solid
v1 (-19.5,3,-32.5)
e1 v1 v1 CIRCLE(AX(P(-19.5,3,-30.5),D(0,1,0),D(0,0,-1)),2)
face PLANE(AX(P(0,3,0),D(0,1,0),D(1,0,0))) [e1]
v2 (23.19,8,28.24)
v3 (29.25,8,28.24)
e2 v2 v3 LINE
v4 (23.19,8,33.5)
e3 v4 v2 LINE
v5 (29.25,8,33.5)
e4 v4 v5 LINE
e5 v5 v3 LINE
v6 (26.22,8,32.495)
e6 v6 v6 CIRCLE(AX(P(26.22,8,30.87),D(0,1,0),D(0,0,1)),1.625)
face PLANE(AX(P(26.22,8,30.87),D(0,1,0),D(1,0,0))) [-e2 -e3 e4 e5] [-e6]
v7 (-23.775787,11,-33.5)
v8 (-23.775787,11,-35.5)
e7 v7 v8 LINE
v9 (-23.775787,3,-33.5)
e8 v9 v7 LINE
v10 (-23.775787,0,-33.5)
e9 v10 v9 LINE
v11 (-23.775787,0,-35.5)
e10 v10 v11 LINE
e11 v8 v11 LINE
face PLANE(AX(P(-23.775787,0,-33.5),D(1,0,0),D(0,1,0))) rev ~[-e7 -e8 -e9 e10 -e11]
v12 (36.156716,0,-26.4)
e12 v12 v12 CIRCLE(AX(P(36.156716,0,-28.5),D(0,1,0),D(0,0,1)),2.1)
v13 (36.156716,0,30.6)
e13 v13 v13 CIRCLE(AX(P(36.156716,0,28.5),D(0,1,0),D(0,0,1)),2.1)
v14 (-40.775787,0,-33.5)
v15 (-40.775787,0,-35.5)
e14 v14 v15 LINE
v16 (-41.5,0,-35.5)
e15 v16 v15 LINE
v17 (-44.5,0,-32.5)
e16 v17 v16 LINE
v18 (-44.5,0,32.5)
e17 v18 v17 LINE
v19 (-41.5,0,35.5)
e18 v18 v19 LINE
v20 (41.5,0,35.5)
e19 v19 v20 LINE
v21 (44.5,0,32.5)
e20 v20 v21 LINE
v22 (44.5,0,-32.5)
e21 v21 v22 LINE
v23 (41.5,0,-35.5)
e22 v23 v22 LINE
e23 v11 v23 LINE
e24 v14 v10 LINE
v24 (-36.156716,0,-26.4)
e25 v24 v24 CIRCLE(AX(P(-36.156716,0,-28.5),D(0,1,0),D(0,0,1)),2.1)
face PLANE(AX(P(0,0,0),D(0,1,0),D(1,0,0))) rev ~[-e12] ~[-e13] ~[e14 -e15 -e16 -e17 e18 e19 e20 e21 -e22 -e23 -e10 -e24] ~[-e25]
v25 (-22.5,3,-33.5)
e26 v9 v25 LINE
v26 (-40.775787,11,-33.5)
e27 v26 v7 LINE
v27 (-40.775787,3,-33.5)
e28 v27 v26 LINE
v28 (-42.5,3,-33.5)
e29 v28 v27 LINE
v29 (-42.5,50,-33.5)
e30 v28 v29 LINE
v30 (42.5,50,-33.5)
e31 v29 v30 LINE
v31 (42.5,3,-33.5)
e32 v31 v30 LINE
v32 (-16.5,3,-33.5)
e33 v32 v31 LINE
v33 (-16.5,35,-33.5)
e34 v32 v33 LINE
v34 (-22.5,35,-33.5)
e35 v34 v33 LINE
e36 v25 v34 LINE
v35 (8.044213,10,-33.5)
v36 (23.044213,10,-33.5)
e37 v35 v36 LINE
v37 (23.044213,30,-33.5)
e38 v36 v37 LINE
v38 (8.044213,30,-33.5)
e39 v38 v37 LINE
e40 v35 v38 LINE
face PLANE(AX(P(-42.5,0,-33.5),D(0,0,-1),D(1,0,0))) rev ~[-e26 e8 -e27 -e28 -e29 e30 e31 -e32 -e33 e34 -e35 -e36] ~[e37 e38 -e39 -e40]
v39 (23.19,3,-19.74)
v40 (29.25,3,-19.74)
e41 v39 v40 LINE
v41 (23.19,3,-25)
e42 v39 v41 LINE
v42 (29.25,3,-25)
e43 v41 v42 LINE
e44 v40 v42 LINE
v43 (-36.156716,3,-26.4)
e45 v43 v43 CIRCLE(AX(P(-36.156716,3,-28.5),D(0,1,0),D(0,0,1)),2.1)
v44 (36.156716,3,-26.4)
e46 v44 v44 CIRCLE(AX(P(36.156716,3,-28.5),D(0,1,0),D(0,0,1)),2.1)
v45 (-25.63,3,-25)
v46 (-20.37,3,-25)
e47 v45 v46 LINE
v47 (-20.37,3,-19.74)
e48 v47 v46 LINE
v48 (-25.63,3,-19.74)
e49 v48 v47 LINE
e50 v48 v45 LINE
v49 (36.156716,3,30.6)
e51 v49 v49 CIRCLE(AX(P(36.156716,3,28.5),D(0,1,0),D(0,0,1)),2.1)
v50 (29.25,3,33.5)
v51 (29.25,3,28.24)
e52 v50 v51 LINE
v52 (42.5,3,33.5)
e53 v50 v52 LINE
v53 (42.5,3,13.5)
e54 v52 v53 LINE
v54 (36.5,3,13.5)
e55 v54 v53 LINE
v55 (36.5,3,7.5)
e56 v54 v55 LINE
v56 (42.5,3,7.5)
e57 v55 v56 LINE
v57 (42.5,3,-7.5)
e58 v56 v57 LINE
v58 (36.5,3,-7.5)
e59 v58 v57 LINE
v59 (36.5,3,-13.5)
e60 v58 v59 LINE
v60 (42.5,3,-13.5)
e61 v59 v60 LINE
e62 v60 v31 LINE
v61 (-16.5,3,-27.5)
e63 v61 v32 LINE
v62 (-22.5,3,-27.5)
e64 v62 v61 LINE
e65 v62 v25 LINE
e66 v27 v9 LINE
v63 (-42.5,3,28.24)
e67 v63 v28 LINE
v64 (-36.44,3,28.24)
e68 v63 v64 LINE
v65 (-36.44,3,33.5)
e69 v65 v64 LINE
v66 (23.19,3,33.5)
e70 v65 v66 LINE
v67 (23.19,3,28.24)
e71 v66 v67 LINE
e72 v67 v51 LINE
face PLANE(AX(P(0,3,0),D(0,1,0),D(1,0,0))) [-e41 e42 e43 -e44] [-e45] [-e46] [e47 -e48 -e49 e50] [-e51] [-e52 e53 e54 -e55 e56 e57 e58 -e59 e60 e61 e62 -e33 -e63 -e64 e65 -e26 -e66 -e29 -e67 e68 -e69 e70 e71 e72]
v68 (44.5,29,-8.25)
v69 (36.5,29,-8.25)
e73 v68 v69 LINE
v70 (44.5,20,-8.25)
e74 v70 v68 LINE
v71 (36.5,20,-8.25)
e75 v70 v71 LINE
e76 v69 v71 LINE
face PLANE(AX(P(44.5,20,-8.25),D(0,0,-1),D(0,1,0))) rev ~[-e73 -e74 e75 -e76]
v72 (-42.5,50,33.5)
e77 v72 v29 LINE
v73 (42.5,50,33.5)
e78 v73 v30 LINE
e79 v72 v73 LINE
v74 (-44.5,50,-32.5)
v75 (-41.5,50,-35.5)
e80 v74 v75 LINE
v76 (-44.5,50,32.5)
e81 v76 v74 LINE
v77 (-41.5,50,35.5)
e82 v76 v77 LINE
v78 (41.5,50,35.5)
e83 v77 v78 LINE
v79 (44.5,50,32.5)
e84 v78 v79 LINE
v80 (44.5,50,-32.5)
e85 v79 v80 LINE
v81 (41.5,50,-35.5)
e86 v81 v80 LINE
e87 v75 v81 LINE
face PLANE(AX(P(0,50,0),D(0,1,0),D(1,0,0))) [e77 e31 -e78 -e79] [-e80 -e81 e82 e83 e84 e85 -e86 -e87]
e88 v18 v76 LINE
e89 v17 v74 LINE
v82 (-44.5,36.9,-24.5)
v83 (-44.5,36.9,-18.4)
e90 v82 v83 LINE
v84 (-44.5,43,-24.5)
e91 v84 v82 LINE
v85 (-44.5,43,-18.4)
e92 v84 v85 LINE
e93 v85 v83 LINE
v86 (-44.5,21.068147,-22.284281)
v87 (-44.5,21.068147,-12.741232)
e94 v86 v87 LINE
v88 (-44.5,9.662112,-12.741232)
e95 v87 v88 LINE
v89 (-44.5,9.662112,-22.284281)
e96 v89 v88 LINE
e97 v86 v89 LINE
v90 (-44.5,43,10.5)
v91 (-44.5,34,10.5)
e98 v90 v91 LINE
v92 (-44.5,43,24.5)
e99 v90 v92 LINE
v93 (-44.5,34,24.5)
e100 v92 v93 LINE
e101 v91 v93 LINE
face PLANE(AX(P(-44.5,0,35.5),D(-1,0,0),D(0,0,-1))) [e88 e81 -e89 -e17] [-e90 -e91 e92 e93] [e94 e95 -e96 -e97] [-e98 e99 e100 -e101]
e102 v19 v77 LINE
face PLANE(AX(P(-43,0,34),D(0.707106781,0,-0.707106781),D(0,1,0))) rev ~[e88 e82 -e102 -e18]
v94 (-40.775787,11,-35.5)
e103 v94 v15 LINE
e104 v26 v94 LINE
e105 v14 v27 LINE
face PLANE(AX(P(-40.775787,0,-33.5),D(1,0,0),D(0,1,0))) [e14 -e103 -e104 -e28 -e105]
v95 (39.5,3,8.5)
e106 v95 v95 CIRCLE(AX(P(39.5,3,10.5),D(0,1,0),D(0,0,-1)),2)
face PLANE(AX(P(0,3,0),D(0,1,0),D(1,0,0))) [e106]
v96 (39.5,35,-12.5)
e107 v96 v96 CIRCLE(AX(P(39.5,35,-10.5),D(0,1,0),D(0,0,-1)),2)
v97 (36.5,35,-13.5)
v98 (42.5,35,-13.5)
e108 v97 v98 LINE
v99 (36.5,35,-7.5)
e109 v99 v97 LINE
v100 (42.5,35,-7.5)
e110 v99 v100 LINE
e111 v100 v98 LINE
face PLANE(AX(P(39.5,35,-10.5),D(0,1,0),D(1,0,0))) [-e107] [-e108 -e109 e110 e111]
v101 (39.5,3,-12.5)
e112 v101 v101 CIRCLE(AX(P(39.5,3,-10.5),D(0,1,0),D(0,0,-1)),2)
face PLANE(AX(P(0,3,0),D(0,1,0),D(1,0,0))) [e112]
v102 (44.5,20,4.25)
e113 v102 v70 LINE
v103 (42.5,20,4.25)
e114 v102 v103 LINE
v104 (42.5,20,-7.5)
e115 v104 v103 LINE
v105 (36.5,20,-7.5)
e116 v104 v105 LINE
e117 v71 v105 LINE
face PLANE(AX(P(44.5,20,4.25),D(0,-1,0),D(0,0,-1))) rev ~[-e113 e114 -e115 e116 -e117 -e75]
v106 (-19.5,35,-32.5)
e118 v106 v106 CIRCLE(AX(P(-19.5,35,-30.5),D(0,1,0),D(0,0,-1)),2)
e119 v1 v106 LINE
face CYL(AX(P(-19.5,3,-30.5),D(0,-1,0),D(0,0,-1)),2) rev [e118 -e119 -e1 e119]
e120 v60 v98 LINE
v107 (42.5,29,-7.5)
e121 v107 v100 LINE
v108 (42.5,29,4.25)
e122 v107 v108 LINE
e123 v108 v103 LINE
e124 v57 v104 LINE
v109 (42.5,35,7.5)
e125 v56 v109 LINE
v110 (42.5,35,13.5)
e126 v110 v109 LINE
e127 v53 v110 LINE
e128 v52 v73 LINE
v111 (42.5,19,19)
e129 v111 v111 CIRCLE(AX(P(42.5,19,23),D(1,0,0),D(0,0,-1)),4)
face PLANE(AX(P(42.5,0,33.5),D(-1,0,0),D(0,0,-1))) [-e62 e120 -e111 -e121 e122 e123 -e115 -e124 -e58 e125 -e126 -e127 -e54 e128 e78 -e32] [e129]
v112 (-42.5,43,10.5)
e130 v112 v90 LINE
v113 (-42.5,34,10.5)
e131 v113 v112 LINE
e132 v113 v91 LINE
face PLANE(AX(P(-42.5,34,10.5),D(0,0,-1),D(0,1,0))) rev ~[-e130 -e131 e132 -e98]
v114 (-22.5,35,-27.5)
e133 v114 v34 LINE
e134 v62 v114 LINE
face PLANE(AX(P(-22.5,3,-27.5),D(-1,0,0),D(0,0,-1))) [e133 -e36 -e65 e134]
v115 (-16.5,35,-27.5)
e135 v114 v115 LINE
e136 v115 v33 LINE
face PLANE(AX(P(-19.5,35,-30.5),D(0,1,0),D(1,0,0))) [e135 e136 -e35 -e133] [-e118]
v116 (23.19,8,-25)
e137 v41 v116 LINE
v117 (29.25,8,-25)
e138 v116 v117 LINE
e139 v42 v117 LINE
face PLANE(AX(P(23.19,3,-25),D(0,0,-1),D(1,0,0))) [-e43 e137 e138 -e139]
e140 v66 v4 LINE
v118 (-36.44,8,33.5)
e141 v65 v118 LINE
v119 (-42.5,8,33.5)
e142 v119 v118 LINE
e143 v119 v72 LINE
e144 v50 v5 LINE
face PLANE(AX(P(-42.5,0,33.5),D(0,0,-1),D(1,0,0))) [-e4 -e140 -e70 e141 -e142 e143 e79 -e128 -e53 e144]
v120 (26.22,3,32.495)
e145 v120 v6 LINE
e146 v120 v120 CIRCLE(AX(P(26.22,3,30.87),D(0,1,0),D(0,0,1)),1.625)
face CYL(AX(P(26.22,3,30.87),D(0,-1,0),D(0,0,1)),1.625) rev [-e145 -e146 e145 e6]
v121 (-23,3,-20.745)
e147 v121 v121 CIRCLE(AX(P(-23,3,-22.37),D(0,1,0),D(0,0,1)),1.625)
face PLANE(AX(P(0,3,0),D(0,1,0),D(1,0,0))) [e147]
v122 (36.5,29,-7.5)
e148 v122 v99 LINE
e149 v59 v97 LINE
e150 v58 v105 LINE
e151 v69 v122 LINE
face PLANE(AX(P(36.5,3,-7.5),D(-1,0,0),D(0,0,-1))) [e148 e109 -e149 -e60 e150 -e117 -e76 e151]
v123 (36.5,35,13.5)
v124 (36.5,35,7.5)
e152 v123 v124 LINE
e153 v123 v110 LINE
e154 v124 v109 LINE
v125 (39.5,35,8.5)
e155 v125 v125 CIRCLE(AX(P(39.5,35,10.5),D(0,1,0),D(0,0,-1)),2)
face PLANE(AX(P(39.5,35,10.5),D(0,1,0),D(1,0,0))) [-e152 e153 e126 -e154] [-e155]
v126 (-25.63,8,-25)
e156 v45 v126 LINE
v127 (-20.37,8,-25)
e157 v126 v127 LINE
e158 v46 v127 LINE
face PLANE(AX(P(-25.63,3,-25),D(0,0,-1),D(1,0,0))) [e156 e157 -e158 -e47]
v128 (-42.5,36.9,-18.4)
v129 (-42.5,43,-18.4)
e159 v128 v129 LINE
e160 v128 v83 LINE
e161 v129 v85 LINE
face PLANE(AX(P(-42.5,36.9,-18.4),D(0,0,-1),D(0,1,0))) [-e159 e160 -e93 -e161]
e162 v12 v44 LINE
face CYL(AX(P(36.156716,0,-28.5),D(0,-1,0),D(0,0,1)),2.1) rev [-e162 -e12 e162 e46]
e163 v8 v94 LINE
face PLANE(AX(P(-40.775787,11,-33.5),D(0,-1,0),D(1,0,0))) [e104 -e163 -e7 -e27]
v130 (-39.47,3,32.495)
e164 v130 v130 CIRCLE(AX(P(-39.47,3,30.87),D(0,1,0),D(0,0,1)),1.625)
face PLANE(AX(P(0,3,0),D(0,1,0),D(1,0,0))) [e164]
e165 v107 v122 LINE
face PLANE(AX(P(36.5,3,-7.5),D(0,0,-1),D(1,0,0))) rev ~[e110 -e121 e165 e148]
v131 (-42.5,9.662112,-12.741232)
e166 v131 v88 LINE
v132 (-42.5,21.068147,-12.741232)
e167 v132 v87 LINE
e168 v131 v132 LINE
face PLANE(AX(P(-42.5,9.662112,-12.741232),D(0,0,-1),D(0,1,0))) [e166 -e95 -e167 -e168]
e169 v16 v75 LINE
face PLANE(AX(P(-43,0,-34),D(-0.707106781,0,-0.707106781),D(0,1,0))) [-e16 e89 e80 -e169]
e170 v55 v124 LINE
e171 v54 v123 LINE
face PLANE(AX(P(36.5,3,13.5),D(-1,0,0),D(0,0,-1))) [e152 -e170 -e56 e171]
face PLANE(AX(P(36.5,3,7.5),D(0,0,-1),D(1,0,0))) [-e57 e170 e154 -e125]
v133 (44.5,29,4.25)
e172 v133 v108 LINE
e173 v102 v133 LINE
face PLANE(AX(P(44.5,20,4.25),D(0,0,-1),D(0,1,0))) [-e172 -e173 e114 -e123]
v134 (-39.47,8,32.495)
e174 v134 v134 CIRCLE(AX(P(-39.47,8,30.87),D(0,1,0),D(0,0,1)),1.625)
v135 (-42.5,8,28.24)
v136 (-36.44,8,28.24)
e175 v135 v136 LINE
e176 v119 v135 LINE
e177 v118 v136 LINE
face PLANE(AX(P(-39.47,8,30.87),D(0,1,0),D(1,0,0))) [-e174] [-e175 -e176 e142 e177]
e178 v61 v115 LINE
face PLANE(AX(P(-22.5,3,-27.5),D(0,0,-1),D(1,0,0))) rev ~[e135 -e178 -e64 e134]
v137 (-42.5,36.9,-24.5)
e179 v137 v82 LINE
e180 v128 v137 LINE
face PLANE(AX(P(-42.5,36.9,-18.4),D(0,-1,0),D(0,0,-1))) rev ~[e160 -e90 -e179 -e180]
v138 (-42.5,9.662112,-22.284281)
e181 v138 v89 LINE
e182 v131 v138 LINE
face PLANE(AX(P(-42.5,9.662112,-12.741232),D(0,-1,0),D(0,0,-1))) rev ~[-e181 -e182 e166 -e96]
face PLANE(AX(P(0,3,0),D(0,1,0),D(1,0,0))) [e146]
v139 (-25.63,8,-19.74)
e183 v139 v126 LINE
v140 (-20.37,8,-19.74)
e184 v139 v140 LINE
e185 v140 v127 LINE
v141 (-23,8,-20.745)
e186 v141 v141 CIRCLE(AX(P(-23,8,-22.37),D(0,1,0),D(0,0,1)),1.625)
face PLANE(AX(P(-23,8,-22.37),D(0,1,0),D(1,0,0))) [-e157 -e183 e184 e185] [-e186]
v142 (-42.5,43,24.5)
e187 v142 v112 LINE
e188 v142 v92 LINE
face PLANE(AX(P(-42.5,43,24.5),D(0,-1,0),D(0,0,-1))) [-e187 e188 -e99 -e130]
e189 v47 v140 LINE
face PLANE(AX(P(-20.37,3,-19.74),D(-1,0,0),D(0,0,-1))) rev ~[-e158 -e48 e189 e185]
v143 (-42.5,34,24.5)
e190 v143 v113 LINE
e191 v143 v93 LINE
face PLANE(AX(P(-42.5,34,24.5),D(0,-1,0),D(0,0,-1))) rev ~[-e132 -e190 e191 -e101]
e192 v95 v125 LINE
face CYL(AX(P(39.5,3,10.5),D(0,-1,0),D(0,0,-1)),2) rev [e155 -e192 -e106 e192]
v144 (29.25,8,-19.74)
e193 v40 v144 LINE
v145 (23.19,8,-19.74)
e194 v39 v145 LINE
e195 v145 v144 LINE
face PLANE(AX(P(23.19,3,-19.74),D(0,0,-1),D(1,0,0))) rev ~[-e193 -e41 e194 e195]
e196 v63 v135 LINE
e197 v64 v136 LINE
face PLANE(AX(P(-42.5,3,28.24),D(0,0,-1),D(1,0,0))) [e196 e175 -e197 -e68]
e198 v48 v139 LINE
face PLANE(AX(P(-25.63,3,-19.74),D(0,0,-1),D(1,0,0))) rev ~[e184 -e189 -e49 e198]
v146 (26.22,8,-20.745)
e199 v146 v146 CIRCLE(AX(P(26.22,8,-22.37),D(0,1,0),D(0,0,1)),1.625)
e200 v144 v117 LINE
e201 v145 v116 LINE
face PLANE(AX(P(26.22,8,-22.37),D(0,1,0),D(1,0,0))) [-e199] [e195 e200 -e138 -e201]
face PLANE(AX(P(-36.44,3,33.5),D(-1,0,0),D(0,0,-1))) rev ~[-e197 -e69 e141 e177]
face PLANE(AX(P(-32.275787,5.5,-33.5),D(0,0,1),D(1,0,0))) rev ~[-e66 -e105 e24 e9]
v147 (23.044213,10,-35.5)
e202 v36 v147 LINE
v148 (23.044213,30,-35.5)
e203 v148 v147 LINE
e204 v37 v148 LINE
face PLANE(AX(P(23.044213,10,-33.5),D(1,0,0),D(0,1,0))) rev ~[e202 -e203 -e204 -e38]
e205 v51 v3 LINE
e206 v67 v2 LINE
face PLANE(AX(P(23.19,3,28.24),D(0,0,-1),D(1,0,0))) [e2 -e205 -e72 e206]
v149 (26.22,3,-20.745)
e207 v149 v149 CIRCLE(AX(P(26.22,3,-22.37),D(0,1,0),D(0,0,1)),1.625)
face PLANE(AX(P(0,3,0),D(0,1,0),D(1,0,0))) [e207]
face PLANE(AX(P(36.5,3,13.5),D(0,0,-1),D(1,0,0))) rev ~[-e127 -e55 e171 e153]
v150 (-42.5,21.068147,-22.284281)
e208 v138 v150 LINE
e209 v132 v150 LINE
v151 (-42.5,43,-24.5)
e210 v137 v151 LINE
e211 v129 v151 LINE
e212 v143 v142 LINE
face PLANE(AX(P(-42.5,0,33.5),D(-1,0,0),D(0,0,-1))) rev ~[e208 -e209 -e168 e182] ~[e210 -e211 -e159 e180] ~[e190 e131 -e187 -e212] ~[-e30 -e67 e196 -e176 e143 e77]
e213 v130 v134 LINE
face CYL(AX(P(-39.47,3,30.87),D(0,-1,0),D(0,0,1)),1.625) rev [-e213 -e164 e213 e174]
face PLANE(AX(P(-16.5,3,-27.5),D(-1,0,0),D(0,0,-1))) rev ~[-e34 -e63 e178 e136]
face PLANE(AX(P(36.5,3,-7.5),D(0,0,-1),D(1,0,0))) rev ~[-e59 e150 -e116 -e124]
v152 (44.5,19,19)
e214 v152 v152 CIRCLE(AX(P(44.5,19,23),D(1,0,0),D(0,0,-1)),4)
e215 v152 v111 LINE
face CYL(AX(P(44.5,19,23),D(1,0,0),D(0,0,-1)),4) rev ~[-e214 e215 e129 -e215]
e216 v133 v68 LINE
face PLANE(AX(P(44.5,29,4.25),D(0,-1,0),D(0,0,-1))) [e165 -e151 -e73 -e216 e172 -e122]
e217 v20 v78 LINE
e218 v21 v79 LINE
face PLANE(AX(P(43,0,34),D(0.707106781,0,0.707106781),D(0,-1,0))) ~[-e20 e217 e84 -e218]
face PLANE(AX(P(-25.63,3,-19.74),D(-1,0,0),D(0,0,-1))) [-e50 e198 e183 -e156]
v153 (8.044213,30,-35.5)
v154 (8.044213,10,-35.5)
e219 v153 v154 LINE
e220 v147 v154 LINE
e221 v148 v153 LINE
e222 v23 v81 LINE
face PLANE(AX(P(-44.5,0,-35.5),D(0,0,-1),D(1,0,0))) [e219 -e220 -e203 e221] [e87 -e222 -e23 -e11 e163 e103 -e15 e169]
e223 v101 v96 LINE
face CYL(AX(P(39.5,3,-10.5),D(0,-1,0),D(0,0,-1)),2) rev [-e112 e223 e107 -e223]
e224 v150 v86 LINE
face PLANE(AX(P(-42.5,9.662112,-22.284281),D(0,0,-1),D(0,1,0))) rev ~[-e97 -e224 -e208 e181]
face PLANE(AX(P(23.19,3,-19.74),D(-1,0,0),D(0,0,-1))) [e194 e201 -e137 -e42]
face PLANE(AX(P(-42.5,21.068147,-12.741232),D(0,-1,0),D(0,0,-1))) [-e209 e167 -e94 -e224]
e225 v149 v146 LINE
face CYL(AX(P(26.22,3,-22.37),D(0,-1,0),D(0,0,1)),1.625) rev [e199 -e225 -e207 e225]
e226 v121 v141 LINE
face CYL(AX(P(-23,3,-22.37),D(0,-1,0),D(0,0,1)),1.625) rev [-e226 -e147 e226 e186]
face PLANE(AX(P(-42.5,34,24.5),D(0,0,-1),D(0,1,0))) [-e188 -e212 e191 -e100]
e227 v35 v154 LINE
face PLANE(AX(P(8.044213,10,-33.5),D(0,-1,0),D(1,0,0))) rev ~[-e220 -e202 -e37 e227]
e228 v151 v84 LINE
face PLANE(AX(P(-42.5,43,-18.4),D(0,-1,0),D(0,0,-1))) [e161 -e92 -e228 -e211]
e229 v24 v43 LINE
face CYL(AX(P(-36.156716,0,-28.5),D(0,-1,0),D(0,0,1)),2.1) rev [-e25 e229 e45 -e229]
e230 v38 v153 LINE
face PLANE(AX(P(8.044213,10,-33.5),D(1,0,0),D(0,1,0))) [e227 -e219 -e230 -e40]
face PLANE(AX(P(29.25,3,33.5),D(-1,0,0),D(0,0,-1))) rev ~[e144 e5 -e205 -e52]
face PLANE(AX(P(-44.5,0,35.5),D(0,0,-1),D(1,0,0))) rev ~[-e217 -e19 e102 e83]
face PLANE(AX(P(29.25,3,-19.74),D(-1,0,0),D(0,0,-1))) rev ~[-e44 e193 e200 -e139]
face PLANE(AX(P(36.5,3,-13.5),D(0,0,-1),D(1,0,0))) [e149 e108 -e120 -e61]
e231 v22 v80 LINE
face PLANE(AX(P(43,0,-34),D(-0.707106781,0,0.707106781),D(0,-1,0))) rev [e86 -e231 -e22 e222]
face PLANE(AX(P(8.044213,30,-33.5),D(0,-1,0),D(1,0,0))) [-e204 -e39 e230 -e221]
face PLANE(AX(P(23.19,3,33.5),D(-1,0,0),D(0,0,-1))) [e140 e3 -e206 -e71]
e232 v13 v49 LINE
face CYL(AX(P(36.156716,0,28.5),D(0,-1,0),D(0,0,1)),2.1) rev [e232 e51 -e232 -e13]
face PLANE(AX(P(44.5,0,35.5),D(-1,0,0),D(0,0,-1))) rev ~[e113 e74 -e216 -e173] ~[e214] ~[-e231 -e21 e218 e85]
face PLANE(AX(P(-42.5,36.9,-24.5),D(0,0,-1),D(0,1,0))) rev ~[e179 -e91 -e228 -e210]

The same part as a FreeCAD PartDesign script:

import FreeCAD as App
import Part
import Sketcher
from FreeCAD import Vector


def edges_at(feature, points):
    """Names of the edges that pass closest to the given points."""
    edges = feature.Shape.Edges
    near = lambda p: min(range(len(edges)), key=lambda i: edges[i].distToShape(Part.Vertex(*p))[0])
    return sorted({f"Edge{near(p) + 1}" for p in points})

doc = App.newDocument("Part")
params = doc.addObject("Spreadsheet::Sheet", "Params")
for row, (alias, value) in enumerate([
    ("sketch1_diameter", "4.2 mm"),
    ("sketch1_width", "85 mm"),
    ("sketch1_height", "67 mm"),
    ("pad1_length", "3 mm"),
    ("sketch2_width", "89 mm"),
    ("sketch2_width2", "85 mm"),
    ("sketch2_height", "71 mm"),
    ("sketch2_height2", "67 mm"),
    ("pad2_length", "50 mm"),
    ("chamfer_size", "3 mm"),
    ("sketch3_diameter", "4 mm"),
    ("sketch3_width", "6 mm"),
    ("pad3_length", "32 mm"),
    ("sketch4_diameter", "3.25 mm"),
    ("sketch4_width", "6.06 mm"),
    ("sketch4_width2", "5.26 mm"),
    ("pad4_length", "5 mm"),
    ("sketch5_width", "15 mm"),
    ("sketch5_width2", "17 mm"),
    ("sketch5_height", "20 mm"),
    ("sketch5_height2", "11 mm"),
    ("pocket1_length", "3 mm"),
    ("sketch6_diameter", "8 mm"),
    ("sketch6_width", "9 mm"),
    ("sketch6_height", "12.5 mm"),
    ("pocket2_length", "10 mm"),
    ("sketch7_width", "9 mm"),
    ("sketch7_height", "14 mm"),
    ("sketch7_width2", "6.1 mm"),
    ("pocket3_length", "10 mm"),
], start=1):
    params.set(f"A{row}", alias)
    params.set(f"B{row}", "=" + value)
    params.setAlias(f"B{row}", alias)

body = doc.addObject("PartDesign::Body", "Body")

# Sketch on XZ plane
sketch1 = body.newObject("Sketcher::SketchObject", "Sketch")
sketch1.AttachmentSupport = (doc.getObject("XZ_Plane"), [""])
sketch1.MapMode = "FlatFace"
sketch1.addGeometry(Part.LineSegment(Vector(-42.5, -33.5, 0), Vector(-42.5, 33.5, 0)), False)
sketch1.addGeometry(Part.LineSegment(Vector(-42.5, 33.5, 0), Vector(42.5, 33.5, 0)), False)
sketch1.addGeometry(Part.LineSegment(Vector(42.5, 33.5, 0), Vector(42.5, -33.5, 0)), False)
sketch1.addGeometry(Part.LineSegment(Vector(42.5, -33.5, 0), Vector(-42.5, -33.5, 0)), False)
sketch1.addGeometry(Part.Circle(Vector(36.156716, 28.5, 0), Vector(0, 0, 1), 2.1), False)
sketch1.addGeometry(Part.Circle(Vector(-36.156716, -28.5, 0), Vector(0, 0, 1), 2.1), False)
sketch1.addGeometry(Part.Circle(Vector(36.156716, -28.5, 0), Vector(0, 0, 1), 2.1), False)
sketch1.addConstraint(Sketcher.Constraint("Coincident", 0, 2, 1, 1))
sketch1.addConstraint(Sketcher.Constraint("Coincident", 1, 2, 2, 1))
sketch1.addConstraint(Sketcher.Constraint("Coincident", 2, 2, 3, 1))
sketch1.addConstraint(Sketcher.Constraint("Coincident", 3, 2, 0, 1))
sketch1.addConstraint(Sketcher.Constraint("Vertical", 0))
sketch1.addConstraint(Sketcher.Constraint("Horizontal", 1))
sketch1.addConstraint(Sketcher.Constraint("Vertical", 2))
sketch1.addConstraint(Sketcher.Constraint("Horizontal", 3))
sketch1.addConstraint(Sketcher.Constraint("Equal", 4, 5))
sketch1.addConstraint(Sketcher.Constraint("Equal", 5, 6))
sketch1.addConstraint(Sketcher.Constraint("Symmetric", 4, 3, 5, 3, -1, 1))
sketch1.addConstraint(Sketcher.Constraint("Symmetric", 0, 2, 2, 2, -1, 1))
sketch1.addConstraint(Sketcher.Constraint("Symmetric", 5, 3, 6, 3, -2))
sketch1.addConstraint(Sketcher.Constraint("Diameter", 4, 4.2))
sketch1.addConstraint(Sketcher.Constraint("DistanceX", 1, 1, 1, 2, 85.0))
sketch1.addConstraint(Sketcher.Constraint("DistanceY", 0, 1, 0, 2, 67.0))
sketch1.addConstraint(Sketcher.Constraint("DistanceY", 5, 3, 4, 3, 57.0))
sketch1.addConstraint(Sketcher.Constraint("DistanceX", -1, 1, 4, 3, 36.156716))
sketch1.setExpression("Constraints[13]", "Params.sketch1_diameter")
sketch1.setExpression("Constraints[14]", "Params.sketch1_width")
sketch1.setExpression("Constraints[15]", "Params.sketch1_height")
pad1 = body.newObject("PartDesign::Pad", "Pad")
pad1.Profile = sketch1
pad1.setExpression("Length", "Params.pad1_length")
pad1.Reversed = True

# Sketch on XZ plane
sketch2 = body.newObject("Sketcher::SketchObject", "Sketch001")
sketch2.AttachmentSupport = (doc.getObject("XZ_Plane"), [""])
sketch2.MapMode = "FlatFace"
sketch2.addGeometry(Part.LineSegment(Vector(-44.5, -35.5, 0), Vector(-44.5, 35.5, 0)), False)
sketch2.addGeometry(Part.LineSegment(Vector(-44.5, 35.5, 0), Vector(44.5, 35.5, 0)), False)
sketch2.addGeometry(Part.LineSegment(Vector(44.5, 35.5, 0), Vector(44.5, -35.5, 0)), False)
sketch2.addGeometry(Part.LineSegment(Vector(44.5, -35.5, 0), Vector(-44.5, -35.5, 0)), False)
sketch2.addGeometry(Part.LineSegment(Vector(42.5, 33.5, 0), Vector(-42.5, 33.5, 0)), False)
sketch2.addGeometry(Part.LineSegment(Vector(-42.5, 33.5, 0), Vector(-42.5, -33.5, 0)), False)
sketch2.addGeometry(Part.LineSegment(Vector(-42.5, -33.5, 0), Vector(42.5, -33.5, 0)), False)
sketch2.addGeometry(Part.LineSegment(Vector(42.5, -33.5, 0), Vector(42.5, 33.5, 0)), False)
sketch2.addConstraint(Sketcher.Constraint("Coincident", 0, 2, 1, 1))
sketch2.addConstraint(Sketcher.Constraint("Coincident", 1, 2, 2, 1))
sketch2.addConstraint(Sketcher.Constraint("Coincident", 2, 2, 3, 1))
sketch2.addConstraint(Sketcher.Constraint("Coincident", 3, 2, 0, 1))
sketch2.addConstraint(Sketcher.Constraint("Coincident", 4, 2, 5, 1))
sketch2.addConstraint(Sketcher.Constraint("Coincident", 5, 2, 6, 1))
sketch2.addConstraint(Sketcher.Constraint("Coincident", 6, 2, 7, 1))
sketch2.addConstraint(Sketcher.Constraint("Coincident", 7, 2, 4, 1))
sketch2.addConstraint(Sketcher.Constraint("Vertical", 0))
sketch2.addConstraint(Sketcher.Constraint("Horizontal", 1))
sketch2.addConstraint(Sketcher.Constraint("Vertical", 2))
sketch2.addConstraint(Sketcher.Constraint("Horizontal", 3))
sketch2.addConstraint(Sketcher.Constraint("Horizontal", 4))
sketch2.addConstraint(Sketcher.Constraint("Vertical", 5))
sketch2.addConstraint(Sketcher.Constraint("Horizontal", 6))
sketch2.addConstraint(Sketcher.Constraint("Vertical", 7))
sketch2.addConstraint(Sketcher.Constraint("Symmetric", 0, 2, 2, 2, -1, 1))
sketch2.addConstraint(Sketcher.Constraint("Symmetric", 4, 2, 6, 2, -1, 1))
sketch2.addConstraint(Sketcher.Constraint("DistanceX", 1, 1, 1, 2, 89.0))
sketch2.addConstraint(Sketcher.Constraint("DistanceX", 4, 2, 4, 1, 85.0))
sketch2.addConstraint(Sketcher.Constraint("DistanceY", 0, 1, 0, 2, 71.0))
sketch2.addConstraint(Sketcher.Constraint("DistanceY", 5, 2, 5, 1, 67.0))
sketch2.setExpression("Constraints[18]", "Params.sketch2_width")
sketch2.setExpression("Constraints[19]", "Params.sketch2_width2")
sketch2.setExpression("Constraints[20]", "Params.sketch2_height")
sketch2.setExpression("Constraints[21]", "Params.sketch2_height2")
pad2 = body.newObject("PartDesign::Pad", "Pad001")
pad2.Profile = sketch2
pad2.setExpression("Length", "Params.pad2_length")
pad2.Reversed = True
doc.recompute()

chamfer = body.newObject("PartDesign::Chamfer", "Chamfer")
chamfer.Base = (pad2, edges_at(pad2, [
    (-44.5, 25, -35.5),
    (-44.5, 25, 35.5),
    (44.5, 25, 35.5),
    (44.5, 25, -35.5),
]))
chamfer.setExpression("Size", "Params.chamfer_size")

# Sketch on XZ plane
sketch3 = body.newObject("Sketcher::SketchObject", "Sketch002")
sketch3.AttachmentSupport = (doc.getObject("XZ_Plane"), [""])
sketch3.MapMode = "FlatFace"
sketch3.AttachmentOffset = App.Placement(Vector(0, 0, -3), App.Rotation())
sketch3.addGeometry(Part.LineSegment(Vector(-22.5, -33.5, 0), Vector(-22.5, -27.5, 0)), False)
sketch3.addGeometry(Part.LineSegment(Vector(-22.5, -27.5, 0), Vector(-16.5, -27.5, 0)), False)
sketch3.addGeometry(Part.LineSegment(Vector(-16.5, -27.5, 0), Vector(-16.5, -33.5, 0)), False)
sketch3.addGeometry(Part.LineSegment(Vector(-16.5, -33.5, 0), Vector(-22.5, -33.5, 0)), False)
sketch3.addGeometry(Part.Circle(Vector(-19.5, -30.5, 0), Vector(0, 0, 1), 2), False)
sketch3.addGeometry(Part.LineSegment(Vector(36.5, -13.5, 0), Vector(36.5, -7.5, 0)), False)
sketch3.addGeometry(Part.LineSegment(Vector(36.5, -7.5, 0), Vector(42.5, -7.5, 0)), False)
sketch3.addGeometry(Part.LineSegment(Vector(42.5, -7.5, 0), Vector(42.5, -13.5, 0)), False)
sketch3.addGeometry(Part.LineSegment(Vector(42.5, -13.5, 0), Vector(36.5, -13.5, 0)), False)
sketch3.addGeometry(Part.Circle(Vector(39.5, -10.5, 0), Vector(0, 0, 1), 2), False)
sketch3.addGeometry(Part.LineSegment(Vector(36.5, 7.5, 0), Vector(36.5, 13.5, 0)), False)
sketch3.addGeometry(Part.LineSegment(Vector(36.5, 13.5, 0), Vector(42.5, 13.5, 0)), False)
sketch3.addGeometry(Part.LineSegment(Vector(42.5, 13.5, 0), Vector(42.5, 7.5, 0)), False)
sketch3.addGeometry(Part.LineSegment(Vector(42.5, 7.5, 0), Vector(36.5, 7.5, 0)), False)
sketch3.addGeometry(Part.Circle(Vector(39.5, 10.5, 0), Vector(0, 0, 1), 2), False)
sketch3.addConstraint(Sketcher.Constraint("Coincident", 0, 2, 1, 1))
sketch3.addConstraint(Sketcher.Constraint("Coincident", 1, 2, 2, 1))
sketch3.addConstraint(Sketcher.Constraint("Coincident", 2, 2, 3, 1))
sketch3.addConstraint(Sketcher.Constraint("Coincident", 3, 2, 0, 1))
sketch3.addConstraint(Sketcher.Constraint("Coincident", 5, 2, 6, 1))
sketch3.addConstraint(Sketcher.Constraint("Coincident", 6, 2, 7, 1))
sketch3.addConstraint(Sketcher.Constraint("Coincident", 7, 2, 8, 1))
sketch3.addConstraint(Sketcher.Constraint("Coincident", 8, 2, 5, 1))
sketch3.addConstraint(Sketcher.Constraint("Coincident", 10, 2, 11, 1))
sketch3.addConstraint(Sketcher.Constraint("Coincident", 11, 2, 12, 1))
sketch3.addConstraint(Sketcher.Constraint("Coincident", 12, 2, 13, 1))
sketch3.addConstraint(Sketcher.Constraint("Coincident", 13, 2, 10, 1))
sketch3.addConstraint(Sketcher.Constraint("Vertical", 0))
sketch3.addConstraint(Sketcher.Constraint("Horizontal", 1))
sketch3.addConstraint(Sketcher.Constraint("Vertical", 2))
sketch3.addConstraint(Sketcher.Constraint("Horizontal", 3))
sketch3.addConstraint(Sketcher.Constraint("Vertical", 5))
sketch3.addConstraint(Sketcher.Constraint("Horizontal", 6))
sketch3.addConstraint(Sketcher.Constraint("Vertical", 7))
sketch3.addConstraint(Sketcher.Constraint("Horizontal", 8))
sketch3.addConstraint(Sketcher.Constraint("Vertical", 10))
sketch3.addConstraint(Sketcher.Constraint("Horizontal", 11))
sketch3.addConstraint(Sketcher.Constraint("Vertical", 12))
sketch3.addConstraint(Sketcher.Constraint("Horizontal", 13))
sketch3.addConstraint(Sketcher.Constraint("Equal", 4, 9))
sketch3.addConstraint(Sketcher.Constraint("Equal", 9, 14))
sketch3.addConstraint(Sketcher.Constraint("Symmetric", 9, 3, 14, 3, -1))
sketch3.addConstraint(Sketcher.Constraint("Symmetric", 8, 2, 10, 2, -1))
sketch3.addConstraint(Sketcher.Constraint("Symmetric", 6, 2, 12, 2, -1))
sketch3.addConstraint(Sketcher.Constraint("Equal", 3, 6))
sketch3.addConstraint(Sketcher.Constraint("Equal", 13, 0))
sketch3.addConstraint(Sketcher.Constraint("Equal", 2, 5))
sketch3.addConstraint(Sketcher.Constraint("Diameter", 4, 4.0))
sketch3.addConstraint(Sketcher.Constraint("DistanceX", 1, 1, 1, 2, 6.0))
sketch3.addConstraint(Sketcher.Constraint("DistanceX", 4, 3, 9, 3, 59.0))
sketch3.addConstraint(Sketcher.Constraint("DistanceY", 4, 3, 9, 3, 20.0))
sketch3.addConstraint(Sketcher.Constraint("DistanceY", 9, 3, 14, 3, 21.0))
sketch3.addConstraint(Sketcher.Constraint("DistanceX", 0, 2, 4, 3, 3.0))
sketch3.addConstraint(Sketcher.Constraint("DistanceY", 4, 3, 0, 2, 3.0))
sketch3.addConstraint(Sketcher.Constraint("DistanceX", 5, 2, 9, 3, 3.0))
sketch3.addConstraint(Sketcher.Constraint("DistanceY", 9, 3, 5, 2, 3.0))
sketch3.addConstraint(Sketcher.Constraint("DistanceX", 4, 3, -1, 1, 19.5))
sketch3.setExpression("Constraints[32]", "Params.sketch3_diameter")
sketch3.setExpression("Constraints[33]", "Params.sketch3_width")
pad3 = body.newObject("PartDesign::Pad", "Pad002")
pad3.Profile = sketch3
pad3.setExpression("Length", "Params.pad3_length")
pad3.Reversed = True

# Sketch on XZ plane
sketch4 = body.newObject("Sketcher::SketchObject", "Sketch003")
sketch4.AttachmentSupport = (doc.getObject("XZ_Plane"), [""])
sketch4.MapMode = "FlatFace"
sketch4.AttachmentOffset = App.Placement(Vector(0, 0, -3), App.Rotation())
sketch4.addGeometry(Part.LineSegment(Vector(-42.5, 28.24, 0), Vector(-42.5, 33.5, 0)), False)
sketch4.addGeometry(Part.LineSegment(Vector(-42.5, 33.5, 0), Vector(-36.44, 33.5, 0)), False)
sketch4.addGeometry(Part.LineSegment(Vector(-36.44, 33.5, 0), Vector(-36.44, 28.24, 0)), False)
sketch4.addGeometry(Part.LineSegment(Vector(-36.44, 28.24, 0), Vector(-42.5, 28.24, 0)), False)
sketch4.addGeometry(Part.Circle(Vector(-39.47, 30.87, 0), Vector(0, 0, 1), 1.625), False)
sketch4.addGeometry(Part.LineSegment(Vector(-25.63, -25, 0), Vector(-25.63, -19.74, 0)), False)
sketch4.addGeometry(Part.LineSegment(Vector(-25.63, -19.74, 0), Vector(-20.37, -19.74, 0)), False)
sketch4.addGeometry(Part.LineSegment(Vector(-20.37, -19.74, 0), Vector(-20.37, -25, 0)), False)
sketch4.addGeometry(Part.LineSegment(Vector(-20.37, -25, 0), Vector(-25.63, -25, 0)), False)
sketch4.addGeometry(Part.Circle(Vector(-23, -22.37, 0), Vector(0, 0, 1), 1.625), False)
sketch4.addGeometry(Part.LineSegment(Vector(23.19, -25, 0), Vector(23.19, -19.74, 0)), False)
sketch4.addGeometry(Part.LineSegment(Vector(23.19, -19.74, 0), Vector(29.25, -19.74, 0)), False)
sketch4.addGeometry(Part.LineSegment(Vector(29.25, -19.74, 0), Vector(29.25, -25, 0)), False)
sketch4.addGeometry(Part.LineSegment(Vector(29.25, -25, 0), Vector(23.19, -25, 0)), False)
sketch4.addGeometry(Part.Circle(Vector(26.22, -22.37, 0), Vector(0, 0, 1), 1.625), False)
sketch4.addGeometry(Part.LineSegment(Vector(23.19, 28.24, 0), Vector(23.19, 33.5, 0)), False)
sketch4.addGeometry(Part.LineSegment(Vector(23.19, 33.5, 0), Vector(29.25, 33.5, 0)), False)
sketch4.addGeometry(Part.LineSegment(Vector(29.25, 33.5, 0), Vector(29.25, 28.24, 0)), False)
sketch4.addGeometry(Part.LineSegment(Vector(29.25, 28.24, 0), Vector(23.19, 28.24, 0)), False)
sketch4.addGeometry(Part.Circle(Vector(26.22, 30.87, 0), Vector(0, 0, 1), 1.625), False)
sketch4.addConstraint(Sketcher.Constraint("Coincident", 0, 2, 1, 1))
sketch4.addConstraint(Sketcher.Constraint("Coincident", 1, 2, 2, 1))
sketch4.addConstraint(Sketcher.Constraint("Coincident", 2, 2, 3, 1))
sketch4.addConstraint(Sketcher.Constraint("Coincident", 3, 2, 0, 1))
sketch4.addConstraint(Sketcher.Constraint("Coincident", 5, 2, 6, 1))
sketch4.addConstraint(Sketcher.Constraint("Coincident", 6, 2, 7, 1))
sketch4.addConstraint(Sketcher.Constraint("Coincident", 7, 2, 8, 1))
sketch4.addConstraint(Sketcher.Constraint("Coincident", 8, 2, 5, 1))
sketch4.addConstraint(Sketcher.Constraint("Coincident", 10, 2, 11, 1))
sketch4.addConstraint(Sketcher.Constraint("Coincident", 11, 2, 12, 1))
sketch4.addConstraint(Sketcher.Constraint("Coincident", 12, 2, 13, 1))
sketch4.addConstraint(Sketcher.Constraint("Coincident", 13, 2, 10, 1))
sketch4.addConstraint(Sketcher.Constraint("Coincident", 15, 2, 16, 1))
sketch4.addConstraint(Sketcher.Constraint("Coincident", 16, 2, 17, 1))
sketch4.addConstraint(Sketcher.Constraint("Coincident", 17, 2, 18, 1))
sketch4.addConstraint(Sketcher.Constraint("Coincident", 18, 2, 15, 1))
sketch4.addConstraint(Sketcher.Constraint("Vertical", 0))
sketch4.addConstraint(Sketcher.Constraint("Horizontal", 1))
sketch4.addConstraint(Sketcher.Constraint("Vertical", 2))
sketch4.addConstraint(Sketcher.Constraint("Horizontal", 3))
sketch4.addConstraint(Sketcher.Constraint("Vertical", 5))
sketch4.addConstraint(Sketcher.Constraint("Horizontal", 6))
sketch4.addConstraint(Sketcher.Constraint("Vertical", 7))
sketch4.addConstraint(Sketcher.Constraint("Horizontal", 8))
sketch4.addConstraint(Sketcher.Constraint("Vertical", 10))
sketch4.addConstraint(Sketcher.Constraint("Horizontal", 11))
sketch4.addConstraint(Sketcher.Constraint("Vertical", 12))
sketch4.addConstraint(Sketcher.Constraint("Horizontal", 13))
sketch4.addConstraint(Sketcher.Constraint("Vertical", 15))
sketch4.addConstraint(Sketcher.Constraint("Horizontal", 16))
sketch4.addConstraint(Sketcher.Constraint("Vertical", 17))
sketch4.addConstraint(Sketcher.Constraint("Horizontal", 18))
sketch4.addConstraint(Sketcher.Constraint("Equal", 4, 9))
sketch4.addConstraint(Sketcher.Constraint("Equal", 9, 14))
sketch4.addConstraint(Sketcher.Constraint("Equal", 14, 19))
sketch4.addConstraint(Sketcher.Constraint("Horizontal", 9, 3, 14, 3))
sketch4.addConstraint(Sketcher.Constraint("Horizontal", 4, 3, 19, 3))
sketch4.addConstraint(Sketcher.Constraint("Horizontal", 6, 2, 10, 2))
sketch4.addConstraint(Sketcher.Constraint("Horizontal", 8, 2, 12, 2))
sketch4.addConstraint(Sketcher.Constraint("Horizontal", 1, 2, 15, 2))
sketch4.addConstraint(Sketcher.Constraint("Horizontal", 3, 2, 17, 2))
sketch4.addConstraint(Sketcher.Constraint("Vertical", 14, 3, 19, 3))
sketch4.addConstraint(Sketcher.Constraint("Vertical", 13, 2, 15, 2))
sketch4.addConstraint(Sketcher.Constraint("Vertical", 12, 2, 16, 2))
sketch4.addConstraint(Sketcher.Constraint("Equal", 3, 11))
sketch4.addConstraint(Sketcher.Constraint("Equal", 8, 0))
sketch4.addConstraint(Sketcher.Constraint("Equal", 2, 5))
sketch4.addConstraint(Sketcher.Constraint("Diameter", 4, 3.25))
sketch4.addConstraint(Sketcher.Constraint("DistanceX", 9, 3, -1, 1, 23.0))
sketch4.addConstraint(Sketcher.Constraint("DistanceY", 7, 2, -1, 1, 25.0))
sketch4.addConstraint(Sketcher.Constraint("DistanceX", 1, 1, 1, 2, 6.06))
sketch4.addConstraint(Sketcher.Constraint("DistanceX", 6, 1, 6, 2, 5.26))
sketch4.addConstraint(Sketcher.Constraint("DistanceX", 0, 2, -1, 1, 42.5))
sketch4.addConstraint(Sketcher.Constraint("DistanceY", -1, 1, 0, 2, 33.5))
sketch4.addConstraint(Sketcher.Constraint("DistanceX", 4, 3, -1, 1, 39.47))
sketch4.addConstraint(Sketcher.Constraint("DistanceY", -1, 1, 4, 3, 30.87))
sketch4.addConstraint(Sketcher.Constraint("DistanceY", 9, 3, -1, 1, 22.37))
sketch4.addConstraint(Sketcher.Constraint("DistanceX", -1, 1, 14, 3, 26.22))
sketch4.addConstraint(Sketcher.Constraint("DistanceX", 5, 2, -1, 1, 25.63))
sketch4.addConstraint(Sketcher.Constraint("DistanceX", -1, 1, 10, 2, 23.19))
sketch4.setExpression("Constraints[47]", "Params.sketch4_diameter")
sketch4.setExpression("Constraints[50]", "Params.sketch4_width")
sketch4.setExpression("Constraints[51]", "Params.sketch4_width2")
pad4 = body.newObject("PartDesign::Pad", "Pad003")
pad4.Profile = sketch4
pad4.setExpression("Length", "Params.pad4_length")
pad4.Reversed = True

# Sketch on XY plane
sketch5 = body.newObject("Sketcher::SketchObject", "Sketch004")
sketch5.AttachmentSupport = (doc.getObject("XY_Plane"), [""])
sketch5.MapMode = "FlatFace"
sketch5.AttachmentOffset = App.Placement(Vector(0, 0, -33.5), App.Rotation())
sketch5.addGeometry(Part.LineSegment(Vector(8.044213, 30, 0), Vector(8.044213, 10, 0)), False)
sketch5.addGeometry(Part.LineSegment(Vector(8.044213, 10, 0), Vector(23.044213, 10, 0)), False)
sketch5.addGeometry(Part.LineSegment(Vector(23.044213, 10, 0), Vector(23.044213, 30, 0)), False)
sketch5.addGeometry(Part.LineSegment(Vector(23.044213, 30, 0), Vector(8.044213, 30, 0)), False)
sketch5.addGeometry(Part.LineSegment(Vector(-40.775787, 11, 0), Vector(-40.775787, 0, 0)), False)
sketch5.addGeometry(Part.LineSegment(Vector(-40.775787, 0, 0), Vector(-23.775787, 0, 0)), False)
sketch5.addGeometry(Part.LineSegment(Vector(-23.775787, 0, 0), Vector(-23.775787, 11, 0)), False)
sketch5.addGeometry(Part.LineSegment(Vector(-23.775787, 11, 0), Vector(-40.775787, 11, 0)), False)
sketch5.addConstraint(Sketcher.Constraint("Coincident", 0, 2, 1, 1))
sketch5.addConstraint(Sketcher.Constraint("Coincident", 1, 2, 2, 1))
sketch5.addConstraint(Sketcher.Constraint("Coincident", 2, 2, 3, 1))
sketch5.addConstraint(Sketcher.Constraint("Coincident", 3, 2, 0, 1))
sketch5.addConstraint(Sketcher.Constraint("Coincident", 4, 2, 5, 1))
sketch5.addConstraint(Sketcher.Constraint("Coincident", 5, 2, 6, 1))
sketch5.addConstraint(Sketcher.Constraint("Coincident", 6, 2, 7, 1))
sketch5.addConstraint(Sketcher.Constraint("Coincident", 7, 2, 4, 1))
sketch5.addConstraint(Sketcher.Constraint("Vertical", 0))
sketch5.addConstraint(Sketcher.Constraint("Horizontal", 1))
sketch5.addConstraint(Sketcher.Constraint("Vertical", 2))
sketch5.addConstraint(Sketcher.Constraint("Horizontal", 3))
sketch5.addConstraint(Sketcher.Constraint("Vertical", 4))
sketch5.addConstraint(Sketcher.Constraint("Horizontal", 5))
sketch5.addConstraint(Sketcher.Constraint("Vertical", 6))
sketch5.addConstraint(Sketcher.Constraint("Horizontal", 7))
sketch5.addConstraint(Sketcher.Constraint("PointOnObject", 4, 2, -1))
sketch5.addConstraint(Sketcher.Constraint("DistanceX", 1, 1, 1, 2, 15.0))
sketch5.addConstraint(Sketcher.Constraint("DistanceX", 5, 1, 5, 2, 17.0))
sketch5.addConstraint(Sketcher.Constraint("DistanceY", 0, 2, 0, 1, 20.0))
sketch5.addConstraint(Sketcher.Constraint("DistanceY", 4, 2, 4, 1, 11.0))
sketch5.addConstraint(Sketcher.Constraint("DistanceY", -1, 1, 0, 2, 10.0))
sketch5.addConstraint(Sketcher.Constraint("DistanceX", 4, 2, 0, 2, 48.82))
sketch5.addConstraint(Sketcher.Constraint("DistanceX", -1, 1, 0, 2, 8.044213))
sketch5.setExpression("Constraints[17]", "Params.sketch5_width")
sketch5.setExpression("Constraints[18]", "Params.sketch5_width2")
sketch5.setExpression("Constraints[19]", "Params.sketch5_height")
sketch5.setExpression("Constraints[20]", "Params.sketch5_height2")
pocket1 = body.newObject("PartDesign::Pocket", "Pocket")
pocket1.Profile = sketch5
pocket1.setExpression("Length", "Params.pocket1_length")

# Sketch on YZ plane
sketch6 = body.newObject("Sketcher::SketchObject", "Sketch005")
sketch6.AttachmentSupport = (doc.getObject("YZ_Plane"), [""])
sketch6.MapMode = "FlatFace"
sketch6.AttachmentOffset = App.Placement(Vector(0, 0, 44.5), App.Rotation())
sketch6.addGeometry(Part.Circle(Vector(19, 23, 0), Vector(0, 0, 1), 4), False)
sketch6.addGeometry(Part.LineSegment(Vector(29, 4.25, 0), Vector(20, 4.25, 0)), False)
sketch6.addGeometry(Part.LineSegment(Vector(20, 4.25, 0), Vector(20, -8.25, 0)), False)
sketch6.addGeometry(Part.LineSegment(Vector(20, -8.25, 0), Vector(29, -8.25, 0)), False)
sketch6.addGeometry(Part.LineSegment(Vector(29, -8.25, 0), Vector(29, 4.25, 0)), False)
sketch6.addConstraint(Sketcher.Constraint("Coincident", 1, 2, 2, 1))
sketch6.addConstraint(Sketcher.Constraint("Coincident", 2, 2, 3, 1))
sketch6.addConstraint(Sketcher.Constraint("Coincident", 3, 2, 4, 1))
sketch6.addConstraint(Sketcher.Constraint("Coincident", 4, 2, 1, 1))
sketch6.addConstraint(Sketcher.Constraint("Horizontal", 1))
sketch6.addConstraint(Sketcher.Constraint("Vertical", 2))
sketch6.addConstraint(Sketcher.Constraint("Horizontal", 3))
sketch6.addConstraint(Sketcher.Constraint("Vertical", 4))
sketch6.addConstraint(Sketcher.Constraint("Diameter", 0, 8.0))
sketch6.addConstraint(Sketcher.Constraint("DistanceX", 1, 2, 1, 1, 9.0))
sketch6.addConstraint(Sketcher.Constraint("DistanceY", 2, 2, 2, 1, 12.5))
sketch6.addConstraint(Sketcher.Constraint("DistanceX", -1, 1, 0, 3, 19.0))
sketch6.addConstraint(Sketcher.Constraint("DistanceY", -1, 1, 0, 3, 23.0))
sketch6.addConstraint(Sketcher.Constraint("DistanceX", -1, 1, 1, 2, 20.0))
sketch6.addConstraint(Sketcher.Constraint("DistanceY", -1, 1, 1, 2, 4.25))
sketch6.setExpression("Constraints[8]", "Params.sketch6_diameter")
sketch6.setExpression("Constraints[9]", "Params.sketch6_width")
sketch6.setExpression("Constraints[10]", "Params.sketch6_height")
pocket2 = body.newObject("PartDesign::Pocket", "Pocket001")
pocket2.Profile = sketch6
pocket2.setExpression("Length", "Params.pocket2_length")

# Sketch on YZ plane
sketch7 = body.newObject("Sketcher::SketchObject", "Sketch006")
sketch7.AttachmentSupport = (doc.getObject("YZ_Plane"), [""])
sketch7.MapMode = "FlatFace"
sketch7.AttachmentOffset = App.Placement(Vector(0, 0, -42.5), App.Rotation())
sketch7.addGeometry(Part.LineSegment(Vector(21.068147, -12.741232, 0), Vector(9.662112, -12.741232, 0)), False)
sketch7.addGeometry(Part.LineSegment(Vector(9.662112, -12.741232, 0), Vector(9.662112, -22.284281, 0)), False)
sketch7.addGeometry(Part.LineSegment(Vector(9.662112, -22.284281, 0), Vector(21.068147, -22.284281, 0)), False)
sketch7.addGeometry(Part.LineSegment(Vector(21.068147, -22.284281, 0), Vector(21.068147, -12.741232, 0)), False)
sketch7.addGeometry(Part.LineSegment(Vector(43, 24.5, 0), Vector(34, 24.5, 0)), False)
sketch7.addGeometry(Part.LineSegment(Vector(34, 24.5, 0), Vector(34, 10.5, 0)), False)
sketch7.addGeometry(Part.LineSegment(Vector(34, 10.5, 0), Vector(43, 10.5, 0)), False)
sketch7.addGeometry(Part.LineSegment(Vector(43, 10.5, 0), Vector(43, 24.5, 0)), False)
sketch7.addGeometry(Part.LineSegment(Vector(43, -18.4, 0), Vector(36.9, -18.4, 0)), False)
sketch7.addGeometry(Part.LineSegment(Vector(36.9, -18.4, 0), Vector(36.9, -24.5, 0)), False)
sketch7.addGeometry(Part.LineSegment(Vector(36.9, -24.5, 0), Vector(43, -24.5, 0)), False)
sketch7.addGeometry(Part.LineSegment(Vector(43, -24.5, 0), Vector(43, -18.4, 0)), False)
sketch7.addConstraint(Sketcher.Constraint("Coincident", 0, 2, 1, 1))
sketch7.addConstraint(Sketcher.Constraint("Coincident", 1, 2, 2, 1))
sketch7.addConstraint(Sketcher.Constraint("Coincident", 2, 2, 3, 1))
sketch7.addConstraint(Sketcher.Constraint("Coincident", 3, 2, 0, 1))
sketch7.addConstraint(Sketcher.Constraint("Coincident", 4, 2, 5, 1))
sketch7.addConstraint(Sketcher.Constraint("Coincident", 5, 2, 6, 1))
sketch7.addConstraint(Sketcher.Constraint("Coincident", 6, 2, 7, 1))
sketch7.addConstraint(Sketcher.Constraint("Coincident", 7, 2, 4, 1))
sketch7.addConstraint(Sketcher.Constraint("Coincident", 8, 2, 9, 1))
sketch7.addConstraint(Sketcher.Constraint("Coincident", 9, 2, 10, 1))
sketch7.addConstraint(Sketcher.Constraint("Coincident", 10, 2, 11, 1))
sketch7.addConstraint(Sketcher.Constraint("Coincident", 11, 2, 8, 1))
sketch7.addConstraint(Sketcher.Constraint("Horizontal", 0))
sketch7.addConstraint(Sketcher.Constraint("Vertical", 1))
sketch7.addConstraint(Sketcher.Constraint("Horizontal", 2))
sketch7.addConstraint(Sketcher.Constraint("Vertical", 3))
sketch7.addConstraint(Sketcher.Constraint("Horizontal", 4))
sketch7.addConstraint(Sketcher.Constraint("Vertical", 5))
sketch7.addConstraint(Sketcher.Constraint("Horizontal", 6))
sketch7.addConstraint(Sketcher.Constraint("Vertical", 7))
sketch7.addConstraint(Sketcher.Constraint("Horizontal", 8))
sketch7.addConstraint(Sketcher.Constraint("Vertical", 9))
sketch7.addConstraint(Sketcher.Constraint("Horizontal", 10))
sketch7.addConstraint(Sketcher.Constraint("Vertical", 11))
sketch7.addConstraint(Sketcher.Constraint("Symmetric", 7, 2, 10, 2, -1))
sketch7.addConstraint(Sketcher.Constraint("Equal", 10, 9))
sketch7.addConstraint(Sketcher.Constraint("DistanceX", 4, 2, 4, 1, 9.0))
sketch7.addConstraint(Sketcher.Constraint("DistanceY", 5, 2, 5, 1, 14.0))
sketch7.addConstraint(Sketcher.Constraint("DistanceX", 8, 2, 8, 1, 6.1))
sketch7.addConstraint(Sketcher.Constraint("DistanceX", -1, 1, 4, 2, 34.0))
sketch7.addConstraint(Sketcher.Constraint("DistanceY", -1, 1, 4, 2, 24.5))
sketch7.addConstraint(Sketcher.Constraint("DistanceY", 1, 2, 1, 1, 9.543049))
sketch7.addConstraint(Sketcher.Constraint("DistanceX", 0, 2, 0, 1, 11.406035))
sketch7.addConstraint(Sketcher.Constraint("DistanceY", 1, 2, -1, 1, 22.284281))
sketch7.addConstraint(Sketcher.Constraint("DistanceX", -1, 1, 0, 2, 9.662112))
sketch7.setExpression("Constraints[26]", "Params.sketch7_width")
sketch7.setExpression("Constraints[27]", "Params.sketch7_height")
sketch7.setExpression("Constraints[28]", "Params.sketch7_width2")
pocket3 = body.newObject("PartDesign::Pocket", "Pocket002")
pocket3.Profile = sketch7
pocket3.setExpression("Length", "Params.pocket3_length")

doc.recompute()
